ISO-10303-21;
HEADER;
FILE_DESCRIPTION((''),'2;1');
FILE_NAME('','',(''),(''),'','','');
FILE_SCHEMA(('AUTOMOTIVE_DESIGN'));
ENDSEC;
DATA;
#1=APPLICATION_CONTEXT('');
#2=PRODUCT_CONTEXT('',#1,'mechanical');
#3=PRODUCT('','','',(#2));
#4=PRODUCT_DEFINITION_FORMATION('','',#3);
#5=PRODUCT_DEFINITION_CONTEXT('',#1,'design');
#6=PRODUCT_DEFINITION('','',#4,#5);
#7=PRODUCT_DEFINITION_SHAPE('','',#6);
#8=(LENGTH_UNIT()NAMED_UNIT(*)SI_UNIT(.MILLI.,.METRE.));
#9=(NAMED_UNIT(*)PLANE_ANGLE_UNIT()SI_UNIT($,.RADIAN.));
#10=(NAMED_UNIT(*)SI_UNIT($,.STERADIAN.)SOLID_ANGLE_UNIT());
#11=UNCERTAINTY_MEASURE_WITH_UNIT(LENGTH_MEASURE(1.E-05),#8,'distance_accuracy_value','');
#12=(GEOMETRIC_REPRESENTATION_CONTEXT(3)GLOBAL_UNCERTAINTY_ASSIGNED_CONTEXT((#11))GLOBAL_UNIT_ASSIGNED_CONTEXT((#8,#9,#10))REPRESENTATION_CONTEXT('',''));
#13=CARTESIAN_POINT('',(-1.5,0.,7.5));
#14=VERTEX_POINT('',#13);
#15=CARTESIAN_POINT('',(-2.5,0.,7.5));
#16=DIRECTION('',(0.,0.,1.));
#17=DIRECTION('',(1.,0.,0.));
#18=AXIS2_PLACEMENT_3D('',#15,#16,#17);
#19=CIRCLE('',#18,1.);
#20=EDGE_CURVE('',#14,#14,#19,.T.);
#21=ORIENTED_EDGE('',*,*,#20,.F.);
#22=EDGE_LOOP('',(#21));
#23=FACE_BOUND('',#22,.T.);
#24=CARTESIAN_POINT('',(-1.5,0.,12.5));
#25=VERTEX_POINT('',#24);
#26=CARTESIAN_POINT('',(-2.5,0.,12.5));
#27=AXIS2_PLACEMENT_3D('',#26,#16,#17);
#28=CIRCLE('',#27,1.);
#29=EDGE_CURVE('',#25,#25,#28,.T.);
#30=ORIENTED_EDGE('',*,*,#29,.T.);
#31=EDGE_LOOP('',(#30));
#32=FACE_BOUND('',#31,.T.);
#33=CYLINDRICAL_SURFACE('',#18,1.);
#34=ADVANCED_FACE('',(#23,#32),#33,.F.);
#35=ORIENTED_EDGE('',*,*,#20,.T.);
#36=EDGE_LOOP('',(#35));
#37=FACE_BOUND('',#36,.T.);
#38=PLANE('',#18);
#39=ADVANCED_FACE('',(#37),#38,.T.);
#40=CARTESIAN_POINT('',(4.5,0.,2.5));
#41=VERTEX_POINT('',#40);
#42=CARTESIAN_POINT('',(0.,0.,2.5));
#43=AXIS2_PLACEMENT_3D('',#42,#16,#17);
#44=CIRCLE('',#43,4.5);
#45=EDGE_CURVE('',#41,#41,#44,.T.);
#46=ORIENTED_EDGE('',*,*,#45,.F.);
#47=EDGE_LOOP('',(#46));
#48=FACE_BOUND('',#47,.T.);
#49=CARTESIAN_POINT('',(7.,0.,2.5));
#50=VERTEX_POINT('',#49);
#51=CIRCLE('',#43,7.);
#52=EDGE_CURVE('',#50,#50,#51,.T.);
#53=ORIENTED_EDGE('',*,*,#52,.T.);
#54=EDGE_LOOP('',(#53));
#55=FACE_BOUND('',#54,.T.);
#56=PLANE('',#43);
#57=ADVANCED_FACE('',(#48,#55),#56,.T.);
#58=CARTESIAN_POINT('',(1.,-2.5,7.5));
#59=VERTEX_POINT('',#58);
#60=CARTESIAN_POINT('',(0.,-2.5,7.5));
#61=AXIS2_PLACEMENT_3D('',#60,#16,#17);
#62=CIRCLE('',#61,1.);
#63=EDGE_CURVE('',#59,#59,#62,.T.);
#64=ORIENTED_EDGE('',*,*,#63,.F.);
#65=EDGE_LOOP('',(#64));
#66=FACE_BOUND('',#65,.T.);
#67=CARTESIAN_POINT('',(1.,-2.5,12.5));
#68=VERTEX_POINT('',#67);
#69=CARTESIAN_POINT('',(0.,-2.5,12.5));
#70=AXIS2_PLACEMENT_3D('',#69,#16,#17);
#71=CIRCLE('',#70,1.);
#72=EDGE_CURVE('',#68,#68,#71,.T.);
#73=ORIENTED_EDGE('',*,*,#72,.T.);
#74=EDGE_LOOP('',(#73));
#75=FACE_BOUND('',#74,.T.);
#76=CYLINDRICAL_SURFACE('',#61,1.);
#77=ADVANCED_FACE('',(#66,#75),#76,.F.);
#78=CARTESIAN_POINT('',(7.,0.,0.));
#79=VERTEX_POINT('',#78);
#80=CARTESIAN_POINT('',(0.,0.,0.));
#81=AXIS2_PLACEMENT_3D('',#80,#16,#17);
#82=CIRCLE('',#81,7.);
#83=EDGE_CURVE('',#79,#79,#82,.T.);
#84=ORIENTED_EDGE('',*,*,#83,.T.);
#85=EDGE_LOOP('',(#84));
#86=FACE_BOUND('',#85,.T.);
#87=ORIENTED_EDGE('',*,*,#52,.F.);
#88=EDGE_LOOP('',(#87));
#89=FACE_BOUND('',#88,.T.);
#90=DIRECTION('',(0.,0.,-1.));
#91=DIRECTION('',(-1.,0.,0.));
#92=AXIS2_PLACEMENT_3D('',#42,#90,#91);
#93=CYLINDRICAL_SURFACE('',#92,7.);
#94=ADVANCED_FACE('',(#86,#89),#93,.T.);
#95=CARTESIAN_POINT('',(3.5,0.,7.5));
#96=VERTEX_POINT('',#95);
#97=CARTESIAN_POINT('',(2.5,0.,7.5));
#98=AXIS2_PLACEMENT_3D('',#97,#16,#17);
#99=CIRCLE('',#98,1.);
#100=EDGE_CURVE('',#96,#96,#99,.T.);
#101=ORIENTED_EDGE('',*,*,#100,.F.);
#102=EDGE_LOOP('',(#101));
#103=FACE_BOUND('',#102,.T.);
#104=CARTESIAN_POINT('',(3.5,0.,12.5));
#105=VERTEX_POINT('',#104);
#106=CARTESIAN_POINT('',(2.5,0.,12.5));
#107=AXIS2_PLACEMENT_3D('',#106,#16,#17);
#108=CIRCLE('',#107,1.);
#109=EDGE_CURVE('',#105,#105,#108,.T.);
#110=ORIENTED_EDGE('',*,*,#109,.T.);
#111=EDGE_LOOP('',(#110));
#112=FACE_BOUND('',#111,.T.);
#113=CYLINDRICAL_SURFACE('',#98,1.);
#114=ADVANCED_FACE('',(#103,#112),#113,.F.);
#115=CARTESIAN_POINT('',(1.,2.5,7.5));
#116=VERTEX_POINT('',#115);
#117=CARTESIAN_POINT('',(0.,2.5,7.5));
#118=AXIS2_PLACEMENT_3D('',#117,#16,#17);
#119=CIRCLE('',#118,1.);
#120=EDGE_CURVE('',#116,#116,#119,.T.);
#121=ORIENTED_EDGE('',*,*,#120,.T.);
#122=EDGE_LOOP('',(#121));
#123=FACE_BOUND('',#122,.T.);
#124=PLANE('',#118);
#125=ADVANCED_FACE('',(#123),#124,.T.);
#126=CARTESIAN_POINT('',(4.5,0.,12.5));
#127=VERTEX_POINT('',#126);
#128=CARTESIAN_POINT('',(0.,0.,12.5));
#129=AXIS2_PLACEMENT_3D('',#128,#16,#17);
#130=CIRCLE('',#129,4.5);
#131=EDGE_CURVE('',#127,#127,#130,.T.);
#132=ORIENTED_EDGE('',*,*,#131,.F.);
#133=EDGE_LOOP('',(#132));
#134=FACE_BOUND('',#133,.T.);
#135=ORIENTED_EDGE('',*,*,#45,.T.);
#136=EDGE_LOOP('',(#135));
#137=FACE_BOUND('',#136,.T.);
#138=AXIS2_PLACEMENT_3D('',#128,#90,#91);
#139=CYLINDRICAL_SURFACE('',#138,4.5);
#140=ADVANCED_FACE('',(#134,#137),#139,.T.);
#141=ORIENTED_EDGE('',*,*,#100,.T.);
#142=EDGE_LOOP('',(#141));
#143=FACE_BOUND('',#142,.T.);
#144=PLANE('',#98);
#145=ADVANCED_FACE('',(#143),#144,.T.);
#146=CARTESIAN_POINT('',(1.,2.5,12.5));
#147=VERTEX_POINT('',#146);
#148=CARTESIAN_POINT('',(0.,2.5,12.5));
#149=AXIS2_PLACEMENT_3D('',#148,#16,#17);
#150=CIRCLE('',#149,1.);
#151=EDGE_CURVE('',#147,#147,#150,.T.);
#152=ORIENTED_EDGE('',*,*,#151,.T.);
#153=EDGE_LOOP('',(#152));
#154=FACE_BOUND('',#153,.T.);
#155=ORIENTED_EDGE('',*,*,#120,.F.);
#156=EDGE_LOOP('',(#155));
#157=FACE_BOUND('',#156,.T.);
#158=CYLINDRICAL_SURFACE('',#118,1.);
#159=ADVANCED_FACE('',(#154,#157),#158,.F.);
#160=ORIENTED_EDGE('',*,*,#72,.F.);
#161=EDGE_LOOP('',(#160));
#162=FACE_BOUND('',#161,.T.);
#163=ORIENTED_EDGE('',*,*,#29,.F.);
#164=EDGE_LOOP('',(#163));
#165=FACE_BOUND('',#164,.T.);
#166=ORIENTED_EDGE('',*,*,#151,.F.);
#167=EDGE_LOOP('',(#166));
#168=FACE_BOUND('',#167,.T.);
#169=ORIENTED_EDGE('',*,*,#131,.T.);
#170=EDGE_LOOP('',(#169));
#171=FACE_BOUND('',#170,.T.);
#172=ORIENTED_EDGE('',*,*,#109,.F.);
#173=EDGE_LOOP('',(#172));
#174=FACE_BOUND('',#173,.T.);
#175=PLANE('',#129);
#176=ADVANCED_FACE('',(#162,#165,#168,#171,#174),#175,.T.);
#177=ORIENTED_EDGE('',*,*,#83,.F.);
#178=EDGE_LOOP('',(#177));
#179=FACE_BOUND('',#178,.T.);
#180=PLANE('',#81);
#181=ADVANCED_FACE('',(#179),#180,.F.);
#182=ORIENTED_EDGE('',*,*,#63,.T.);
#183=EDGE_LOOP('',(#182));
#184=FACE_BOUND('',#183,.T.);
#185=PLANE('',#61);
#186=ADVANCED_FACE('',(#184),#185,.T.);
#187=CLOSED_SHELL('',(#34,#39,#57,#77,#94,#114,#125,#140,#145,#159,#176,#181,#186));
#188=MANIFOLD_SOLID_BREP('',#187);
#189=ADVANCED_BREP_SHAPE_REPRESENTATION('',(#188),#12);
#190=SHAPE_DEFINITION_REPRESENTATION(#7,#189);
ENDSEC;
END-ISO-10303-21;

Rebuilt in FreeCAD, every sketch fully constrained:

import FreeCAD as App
import Part
import Sketcher
from FreeCAD import Vector

doc = App.newDocument("Part")
body = doc.addObject("PartDesign::Body", "Body")

sketch1 = doc.addObject("Sketcher::SketchObject", "Sketch")
body.addObject(sketch1)
sketch1.AttachmentSupport = (doc.XY_Plane, [""])
sketch1.MapMode = "FlatFace"
sketch1.addGeometry(Part.Circle(Vector(0, 0, 0), Vector(0, 0, 1), 7), False)
sketch1.addConstraint([
    Sketcher.Constraint("Coincident", 0, 3, -1, 1),
    Sketcher.Constraint("Diameter", 0, 14.0),
])
pad1 = doc.addObject("PartDesign::Pad", "Pad")
body.addObject(pad1)
pad1.Profile = sketch1
pad1.Length = 2.5

sketch2 = doc.addObject("Sketcher::SketchObject", "Sketch001")
body.addObject(sketch2)
sketch2.AttachmentSupport = (doc.XY_Plane, [""])
sketch2.MapMode = "FlatFace"
sketch2.AttachmentOffset = App.Placement(Vector(0, 0, 2.5), App.Rotation())
sketch2.addGeometry(Part.Circle(Vector(0, 0, 0), Vector(0, 0, 1), 4.5), False)
sketch2.addConstraint([
    Sketcher.Constraint("Coincident", 0, 3, -1, 1),
    Sketcher.Constraint("Diameter", 0, 9.0),
])
pad2 = doc.addObject("PartDesign::Pad", "Pad001")
body.addObject(pad2)
pad2.Profile = sketch2
pad2.Length = 10

sketch3 = doc.addObject("Sketcher::SketchObject", "Sketch002")
body.addObject(sketch3)
sketch3.AttachmentSupport = (doc.XY_Plane, [""])
sketch3.MapMode = "FlatFace"
sketch3.AttachmentOffset = App.Placement(Vector(0, 0, 12.5), App.Rotation())
sketch3.addGeometry([
    Part.Circle(Vector(0, 2.5, 0), Vector(0, 0, 1), 1),
    Part.Circle(Vector(2.5, 0, 0), Vector(0, 0, 1), 1),
    Part.Circle(Vector(0, -2.5, 0), Vector(0, 0, 1), 1),
    Part.Circle(Vector(-2.5, 0, 0), Vector(0, 0, 1), 1),
], False)
sketch3.addConstraint([
    Sketcher.Constraint("Equal", 0, 1),
    Sketcher.Constraint("Equal", 1, 2),
    Sketcher.Constraint("Equal", 2, 3),
    Sketcher.Constraint("Symmetric", 0, 3, 2, 3, -1, 1),
    Sketcher.Constraint("Symmetric", 1, 3, 3, 3, -1, 1),
    Sketcher.Constraint("PointOnObject", 0, 3, -2),
    Sketcher.Constraint("PointOnObject", 1, 3, -1),
    Sketcher.Constraint("Diameter", 0, 2.0),
    Sketcher.Constraint("DistanceY", 2, 3, 0, 3, 5.0),
    Sketcher.Constraint("DistanceX", 3, 3, 1, 3, 5.0),
])
pocket1 = doc.addObject("PartDesign::Pocket", "Pocket")
body.addObject(pocket1)
pocket1.Profile = sketch3
pocket1.Length = 5

doc.recompute()
